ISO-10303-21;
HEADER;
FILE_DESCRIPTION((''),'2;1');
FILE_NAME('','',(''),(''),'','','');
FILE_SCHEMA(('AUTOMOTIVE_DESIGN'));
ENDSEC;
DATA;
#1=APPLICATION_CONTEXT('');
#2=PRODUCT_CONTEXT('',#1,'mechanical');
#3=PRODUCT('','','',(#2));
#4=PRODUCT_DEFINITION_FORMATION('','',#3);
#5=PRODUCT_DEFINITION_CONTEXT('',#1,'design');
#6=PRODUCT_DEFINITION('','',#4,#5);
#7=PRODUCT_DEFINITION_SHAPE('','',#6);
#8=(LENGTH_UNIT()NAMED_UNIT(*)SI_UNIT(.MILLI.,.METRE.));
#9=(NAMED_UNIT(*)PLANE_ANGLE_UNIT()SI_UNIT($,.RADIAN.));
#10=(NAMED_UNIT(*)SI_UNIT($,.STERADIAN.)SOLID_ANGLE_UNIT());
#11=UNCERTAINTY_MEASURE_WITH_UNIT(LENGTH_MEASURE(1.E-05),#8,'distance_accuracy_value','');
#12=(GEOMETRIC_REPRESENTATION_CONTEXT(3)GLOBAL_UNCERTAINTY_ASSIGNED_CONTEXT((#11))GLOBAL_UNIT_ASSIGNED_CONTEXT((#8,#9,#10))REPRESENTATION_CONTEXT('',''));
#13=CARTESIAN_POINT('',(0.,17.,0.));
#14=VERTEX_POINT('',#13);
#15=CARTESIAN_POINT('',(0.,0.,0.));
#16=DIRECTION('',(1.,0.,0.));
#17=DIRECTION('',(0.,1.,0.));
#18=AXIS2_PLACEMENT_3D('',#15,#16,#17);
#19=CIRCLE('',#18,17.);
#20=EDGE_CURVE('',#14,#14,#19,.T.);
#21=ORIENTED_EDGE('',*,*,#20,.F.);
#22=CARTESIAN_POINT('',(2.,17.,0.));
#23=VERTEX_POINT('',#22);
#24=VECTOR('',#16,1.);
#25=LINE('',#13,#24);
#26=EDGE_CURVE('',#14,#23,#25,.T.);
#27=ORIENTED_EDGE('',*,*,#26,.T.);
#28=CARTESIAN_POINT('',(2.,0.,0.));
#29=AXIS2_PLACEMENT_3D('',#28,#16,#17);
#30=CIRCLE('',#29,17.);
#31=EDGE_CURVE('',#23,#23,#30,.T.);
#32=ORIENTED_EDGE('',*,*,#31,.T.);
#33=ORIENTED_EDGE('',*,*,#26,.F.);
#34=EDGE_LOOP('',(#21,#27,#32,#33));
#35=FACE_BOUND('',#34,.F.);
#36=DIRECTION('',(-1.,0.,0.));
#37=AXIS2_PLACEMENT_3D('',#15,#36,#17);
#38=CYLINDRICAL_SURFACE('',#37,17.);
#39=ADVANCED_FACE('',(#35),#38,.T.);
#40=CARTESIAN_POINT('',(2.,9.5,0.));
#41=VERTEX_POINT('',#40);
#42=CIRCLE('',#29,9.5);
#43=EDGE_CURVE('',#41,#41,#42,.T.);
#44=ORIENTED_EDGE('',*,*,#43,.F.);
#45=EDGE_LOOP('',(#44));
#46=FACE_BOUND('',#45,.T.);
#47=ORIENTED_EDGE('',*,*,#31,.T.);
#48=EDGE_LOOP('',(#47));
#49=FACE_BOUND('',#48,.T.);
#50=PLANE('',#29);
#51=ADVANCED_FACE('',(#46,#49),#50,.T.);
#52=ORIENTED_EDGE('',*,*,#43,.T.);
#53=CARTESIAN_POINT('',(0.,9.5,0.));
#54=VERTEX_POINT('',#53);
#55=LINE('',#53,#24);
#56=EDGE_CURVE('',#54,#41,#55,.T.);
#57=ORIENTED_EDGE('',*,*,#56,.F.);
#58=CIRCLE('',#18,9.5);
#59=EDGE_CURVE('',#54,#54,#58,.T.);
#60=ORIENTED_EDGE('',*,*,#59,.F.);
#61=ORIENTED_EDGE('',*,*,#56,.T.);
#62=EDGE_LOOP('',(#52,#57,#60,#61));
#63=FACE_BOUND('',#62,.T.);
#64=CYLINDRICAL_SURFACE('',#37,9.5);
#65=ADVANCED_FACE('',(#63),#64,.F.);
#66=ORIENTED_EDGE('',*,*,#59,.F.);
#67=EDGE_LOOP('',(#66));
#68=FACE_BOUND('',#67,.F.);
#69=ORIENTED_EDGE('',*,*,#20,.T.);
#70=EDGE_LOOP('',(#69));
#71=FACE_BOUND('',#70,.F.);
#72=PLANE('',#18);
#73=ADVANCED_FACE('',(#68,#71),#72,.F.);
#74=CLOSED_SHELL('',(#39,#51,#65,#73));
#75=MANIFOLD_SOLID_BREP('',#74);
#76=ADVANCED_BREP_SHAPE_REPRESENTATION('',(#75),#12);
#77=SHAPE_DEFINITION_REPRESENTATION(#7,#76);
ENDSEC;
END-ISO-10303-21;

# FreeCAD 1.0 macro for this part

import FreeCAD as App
import Part
import Sketcher

V = App.Vector

doc = App.newDocument("Part")
body = doc.addObject("PartDesign::Body", "Body")

# Sketch on YZ plane
sketch1 = doc.addObject("Sketcher::SketchObject", "Sketch")
body.addObject(sketch1)
sketch1.AttachmentSupport = (doc.YZ_Plane, [""])
sketch1.MapMode = "FlatFace"
sketch1.addGeometry(Part.Circle(V(0, 0, 0), V(0, 0, 1), 17), False)
sketch1.addGeometry(Part.Circle(V(0, 0, 0), V(0, 0, 1), 10), False)
sketch1.addConstraint(Sketcher.Constraint("Coincident", 0, 3, -1, 1))
sketch1.addConstraint(Sketcher.Constraint("Coincident", 1, 3, -1, 1))
sketch1.addConstraint(Sketcher.Constraint("Diameter", 0, 34.0))
sketch1.addConstraint(Sketcher.Constraint("Diameter", 1, 19.0))
pad1 = doc.addObject("PartDesign::Pad", "Pad")
body.addObject(pad1)
pad1.Profile = sketch1
pad1.Length = 2

doc.recompute()
